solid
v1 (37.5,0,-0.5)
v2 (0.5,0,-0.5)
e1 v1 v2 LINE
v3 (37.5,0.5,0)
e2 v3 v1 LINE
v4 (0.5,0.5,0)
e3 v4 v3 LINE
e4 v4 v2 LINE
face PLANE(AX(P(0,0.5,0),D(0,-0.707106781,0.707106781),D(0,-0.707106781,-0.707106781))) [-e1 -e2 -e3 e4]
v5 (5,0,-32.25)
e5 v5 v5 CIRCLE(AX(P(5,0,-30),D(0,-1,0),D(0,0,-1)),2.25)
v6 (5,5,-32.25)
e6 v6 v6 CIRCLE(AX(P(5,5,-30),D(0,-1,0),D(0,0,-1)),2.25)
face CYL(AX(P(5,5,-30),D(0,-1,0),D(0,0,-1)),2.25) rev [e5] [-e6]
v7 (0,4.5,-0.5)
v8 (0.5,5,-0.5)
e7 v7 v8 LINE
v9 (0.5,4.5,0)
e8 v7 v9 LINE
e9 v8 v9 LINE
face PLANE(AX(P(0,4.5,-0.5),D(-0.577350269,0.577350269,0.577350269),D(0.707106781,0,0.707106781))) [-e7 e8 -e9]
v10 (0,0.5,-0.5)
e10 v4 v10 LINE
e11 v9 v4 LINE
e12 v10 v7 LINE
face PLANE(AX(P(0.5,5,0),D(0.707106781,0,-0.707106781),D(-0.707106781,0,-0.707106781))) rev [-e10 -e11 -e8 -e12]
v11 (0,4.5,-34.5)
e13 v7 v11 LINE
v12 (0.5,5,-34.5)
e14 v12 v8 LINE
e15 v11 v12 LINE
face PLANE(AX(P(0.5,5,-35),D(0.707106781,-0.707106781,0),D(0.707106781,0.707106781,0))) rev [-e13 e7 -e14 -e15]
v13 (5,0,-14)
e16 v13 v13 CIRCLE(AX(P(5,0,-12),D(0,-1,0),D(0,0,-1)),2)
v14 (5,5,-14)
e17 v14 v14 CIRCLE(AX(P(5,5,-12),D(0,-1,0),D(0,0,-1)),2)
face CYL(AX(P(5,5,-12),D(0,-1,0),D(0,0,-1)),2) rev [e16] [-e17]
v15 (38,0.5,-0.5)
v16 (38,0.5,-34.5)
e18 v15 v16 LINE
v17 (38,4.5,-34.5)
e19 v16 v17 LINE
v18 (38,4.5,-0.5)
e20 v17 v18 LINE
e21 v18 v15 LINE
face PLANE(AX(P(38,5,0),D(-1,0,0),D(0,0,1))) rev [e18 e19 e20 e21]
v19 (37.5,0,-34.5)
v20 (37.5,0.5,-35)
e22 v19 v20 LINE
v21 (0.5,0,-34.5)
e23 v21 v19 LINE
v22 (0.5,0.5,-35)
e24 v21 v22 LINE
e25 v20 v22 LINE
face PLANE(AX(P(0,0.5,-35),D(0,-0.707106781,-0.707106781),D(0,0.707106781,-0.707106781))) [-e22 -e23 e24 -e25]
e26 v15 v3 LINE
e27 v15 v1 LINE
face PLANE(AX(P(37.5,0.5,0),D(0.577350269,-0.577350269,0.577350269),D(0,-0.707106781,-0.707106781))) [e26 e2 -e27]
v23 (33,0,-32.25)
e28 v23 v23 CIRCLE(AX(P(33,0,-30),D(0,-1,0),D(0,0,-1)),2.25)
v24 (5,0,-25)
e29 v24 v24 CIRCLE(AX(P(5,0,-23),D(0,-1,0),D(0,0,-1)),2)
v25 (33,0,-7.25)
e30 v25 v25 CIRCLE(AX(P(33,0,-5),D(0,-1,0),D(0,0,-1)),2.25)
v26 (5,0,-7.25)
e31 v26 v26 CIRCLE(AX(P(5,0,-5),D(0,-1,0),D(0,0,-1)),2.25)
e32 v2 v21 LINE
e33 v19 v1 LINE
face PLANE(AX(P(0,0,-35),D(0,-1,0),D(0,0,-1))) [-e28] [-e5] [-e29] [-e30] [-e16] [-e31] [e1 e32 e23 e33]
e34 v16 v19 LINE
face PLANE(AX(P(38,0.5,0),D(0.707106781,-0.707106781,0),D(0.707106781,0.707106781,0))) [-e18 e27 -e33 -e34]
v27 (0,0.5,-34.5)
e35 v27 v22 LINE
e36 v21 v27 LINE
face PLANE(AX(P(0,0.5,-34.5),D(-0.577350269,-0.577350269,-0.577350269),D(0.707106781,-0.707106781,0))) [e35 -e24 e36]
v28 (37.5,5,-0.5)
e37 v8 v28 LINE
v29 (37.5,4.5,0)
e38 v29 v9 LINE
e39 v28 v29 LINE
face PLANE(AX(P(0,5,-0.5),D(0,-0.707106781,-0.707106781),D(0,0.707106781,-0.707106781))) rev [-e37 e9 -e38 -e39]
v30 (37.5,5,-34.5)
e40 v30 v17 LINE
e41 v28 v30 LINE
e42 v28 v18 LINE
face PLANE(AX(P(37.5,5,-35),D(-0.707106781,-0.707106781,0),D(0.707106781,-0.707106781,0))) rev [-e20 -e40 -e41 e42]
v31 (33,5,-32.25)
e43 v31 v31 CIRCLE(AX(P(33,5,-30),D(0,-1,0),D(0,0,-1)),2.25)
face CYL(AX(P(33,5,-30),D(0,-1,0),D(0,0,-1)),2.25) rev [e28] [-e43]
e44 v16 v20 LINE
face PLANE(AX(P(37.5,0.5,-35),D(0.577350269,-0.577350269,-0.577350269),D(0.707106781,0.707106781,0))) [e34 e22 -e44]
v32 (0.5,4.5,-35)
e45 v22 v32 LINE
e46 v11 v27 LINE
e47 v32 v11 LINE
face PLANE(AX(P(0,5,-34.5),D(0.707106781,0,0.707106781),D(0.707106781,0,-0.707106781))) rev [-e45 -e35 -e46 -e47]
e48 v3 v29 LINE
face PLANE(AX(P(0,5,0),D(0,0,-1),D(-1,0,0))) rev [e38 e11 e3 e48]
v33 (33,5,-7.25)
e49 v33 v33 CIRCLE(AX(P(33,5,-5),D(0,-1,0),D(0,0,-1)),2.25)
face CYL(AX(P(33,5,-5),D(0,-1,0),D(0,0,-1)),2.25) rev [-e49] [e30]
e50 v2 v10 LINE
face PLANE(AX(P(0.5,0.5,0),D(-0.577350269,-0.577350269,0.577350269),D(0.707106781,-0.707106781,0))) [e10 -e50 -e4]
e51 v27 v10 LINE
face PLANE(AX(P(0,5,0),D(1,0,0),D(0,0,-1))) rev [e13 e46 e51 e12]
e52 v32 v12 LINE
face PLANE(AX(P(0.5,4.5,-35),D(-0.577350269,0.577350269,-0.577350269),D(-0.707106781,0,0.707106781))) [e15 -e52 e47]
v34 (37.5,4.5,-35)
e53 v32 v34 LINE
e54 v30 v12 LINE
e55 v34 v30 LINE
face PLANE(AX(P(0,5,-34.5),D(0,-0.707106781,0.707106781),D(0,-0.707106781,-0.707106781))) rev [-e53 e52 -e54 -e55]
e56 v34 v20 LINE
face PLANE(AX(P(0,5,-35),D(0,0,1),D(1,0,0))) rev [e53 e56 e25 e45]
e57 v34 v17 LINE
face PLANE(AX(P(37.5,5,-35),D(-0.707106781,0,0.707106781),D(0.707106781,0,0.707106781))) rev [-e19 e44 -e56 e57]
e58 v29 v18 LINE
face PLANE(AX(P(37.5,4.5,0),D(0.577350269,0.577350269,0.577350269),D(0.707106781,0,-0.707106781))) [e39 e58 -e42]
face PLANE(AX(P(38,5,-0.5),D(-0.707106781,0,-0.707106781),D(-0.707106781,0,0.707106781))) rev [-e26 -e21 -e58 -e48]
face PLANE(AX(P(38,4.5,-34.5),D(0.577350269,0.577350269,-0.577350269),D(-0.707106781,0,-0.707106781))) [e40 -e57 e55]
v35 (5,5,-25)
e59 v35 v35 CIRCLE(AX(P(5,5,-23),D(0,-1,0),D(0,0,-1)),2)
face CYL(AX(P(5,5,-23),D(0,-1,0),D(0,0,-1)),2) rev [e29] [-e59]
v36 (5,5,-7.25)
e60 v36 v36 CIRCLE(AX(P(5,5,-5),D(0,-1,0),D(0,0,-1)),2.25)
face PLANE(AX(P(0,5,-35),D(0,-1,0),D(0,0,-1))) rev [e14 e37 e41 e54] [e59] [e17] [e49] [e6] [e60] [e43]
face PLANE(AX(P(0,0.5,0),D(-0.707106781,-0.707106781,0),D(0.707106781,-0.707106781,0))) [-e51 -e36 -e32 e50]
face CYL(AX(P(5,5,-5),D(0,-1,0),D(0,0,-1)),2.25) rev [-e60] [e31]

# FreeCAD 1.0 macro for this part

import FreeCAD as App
import Part
import Sketcher

V = App.Vector
Q = App.Units.Quantity


def add_polygon(sketch, points):
    """Adds a closed chain of lines whose ends are joined by coincident constraints."""
    first, n = sketch.GeometryCount, len(points)
    for a, b in zip(points, points[1:] + points[:1]):
        sketch.addGeometry(Part.LineSegment(App.Vector(*a, 0), App.Vector(*b, 0)), False)
    for i in range(n):
        sketch.addConstraint(Sketcher.Constraint("Coincident", first + i, 2, first + (i + 1) % n, 1))

doc = App.newDocument("Part")
body = doc.addObject("PartDesign::Body", "Body")

# Sketch on XZ plane
sketch1 = body.newObject("Sketcher::SketchObject", "Sketch")
sketch1.AttachmentSupport = (doc.getObject("XZ_Plane"), [""])
sketch1.MapMode = "FlatFace"
add_polygon(sketch1, [(0, -35), (0, 0), (38, 0), (38, -35)])  # lines 0-3
sketch1.addConstraint(Sketcher.Constraint("Vertical", 0))
sketch1.addConstraint(Sketcher.Constraint("Horizontal", 1))
sketch1.addConstraint(Sketcher.Constraint("Vertical", 2))
sketch1.addConstraint(Sketcher.Constraint("Horizontal", 3))
sketch1.addConstraint(Sketcher.Constraint("Coincident", 0, 2, -1, 1))
sketch1.addConstraint(Sketcher.Constraint("DistanceX", 1, 1, 1, 2, Q("38 mm")))
sketch1.addConstraint(Sketcher.Constraint("DistanceY", 0, 1, 0, 2, Q("35 mm")))
pad1 = body.newObject("PartDesign::Pad", "Pad")
pad1.Profile = sketch1
pad1.Length = 5
pad1.Reversed = True
doc.recompute()

chamfer = body.newObject("PartDesign::Chamfer", "Chamfer")
chamfer.Base = (pad1, ["Edge1"])
chamfer.UseAllEdges = True
chamfer.Size = 0.5

# Sketch on XZ plane
sketch2 = body.newObject("Sketcher::SketchObject", "Sketch001")
sketch2.AttachmentSupport = (doc.getObject("XZ_Plane"), [""])
sketch2.MapMode = "FlatFace"
sketch2.addGeometry(Part.Circle(V(5, -5, 0), V(0, 0, 1), 2.25), False)
sketch2.addGeometry(Part.Circle(V(5, -30, 0), V(0, 0, 1), 2.25), False)
sketch2.addGeometry(Part.Circle(V(33, -30, 0), V(0, 0, 1), 2.25), False)
sketch2.addGeometry(Part.Circle(V(33, -5, 0), V(0, 0, 1), 2.25), False)
sketch2.addGeometry(Part.Circle(V(5, -12, 0), V(0, 0, 1), 2), False)
sketch2.addGeometry(Part.Circle(V(5, -23, 0), V(0, 0, 1), 2), False)
sketch2.addConstraint(Sketcher.Constraint("Equal", 0, 1))
sketch2.addConstraint(Sketcher.Constraint("Equal", 1, 2))
sketch2.addConstraint(Sketcher.Constraint("Equal", 2, 3))
sketch2.addConstraint(Sketcher.Constraint("Equal", 4, 5))
sketch2.addConstraint(Sketcher.Constraint("Horizontal", 1, 3, 2, 3))
sketch2.addConstraint(Sketcher.Constraint("Horizontal", 0, 3, 3, 3))
sketch2.addConstraint(Sketcher.Constraint("Vertical", 0, 3, 1, 3))
sketch2.addConstraint(Sketcher.Constraint("Vertical", 2, 3, 3, 3))
sketch2.addConstraint(Sketcher.Constraint("Vertical", 1, 3, 4, 3))
sketch2.addConstraint(Sketcher.Constraint("Vertical", 4, 3, 5, 3))
sketch2.addConstraint(Sketcher.Constraint("Diameter", 4, Q("4 mm")))
sketch2.addConstraint(Sketcher.Constraint("Diameter", 0, Q("4.5 mm")))
sketch2.addConstraint(Sketcher.Constraint("DistanceX", -1, 1, 0, 3, Q("5 mm")))
sketch2.addConstraint(Sketcher.Constraint("DistanceY", 0, 3, -1, 1, Q("5 mm")))
sketch2.addConstraint(Sketcher.Constraint("DistanceY", 1, 3, -1, 1, Q("30 mm")))
sketch2.addConstraint(Sketcher.Constraint("DistanceX", -1, 1, 2, 3, Q("33 mm")))
sketch2.addConstraint(Sketcher.Constraint("DistanceY", 4, 3, -1, 1, Q("12 mm")))
sketch2.addConstraint(Sketcher.Constraint("DistanceY", 5, 3, -1, 1, Q("23 mm")))
pocket1 = body.newObject("PartDesign::Pocket", "Pocket")
pocket1.Profile = sketch2
pocket1.Type = "ThroughAll"

doc.recompute()
